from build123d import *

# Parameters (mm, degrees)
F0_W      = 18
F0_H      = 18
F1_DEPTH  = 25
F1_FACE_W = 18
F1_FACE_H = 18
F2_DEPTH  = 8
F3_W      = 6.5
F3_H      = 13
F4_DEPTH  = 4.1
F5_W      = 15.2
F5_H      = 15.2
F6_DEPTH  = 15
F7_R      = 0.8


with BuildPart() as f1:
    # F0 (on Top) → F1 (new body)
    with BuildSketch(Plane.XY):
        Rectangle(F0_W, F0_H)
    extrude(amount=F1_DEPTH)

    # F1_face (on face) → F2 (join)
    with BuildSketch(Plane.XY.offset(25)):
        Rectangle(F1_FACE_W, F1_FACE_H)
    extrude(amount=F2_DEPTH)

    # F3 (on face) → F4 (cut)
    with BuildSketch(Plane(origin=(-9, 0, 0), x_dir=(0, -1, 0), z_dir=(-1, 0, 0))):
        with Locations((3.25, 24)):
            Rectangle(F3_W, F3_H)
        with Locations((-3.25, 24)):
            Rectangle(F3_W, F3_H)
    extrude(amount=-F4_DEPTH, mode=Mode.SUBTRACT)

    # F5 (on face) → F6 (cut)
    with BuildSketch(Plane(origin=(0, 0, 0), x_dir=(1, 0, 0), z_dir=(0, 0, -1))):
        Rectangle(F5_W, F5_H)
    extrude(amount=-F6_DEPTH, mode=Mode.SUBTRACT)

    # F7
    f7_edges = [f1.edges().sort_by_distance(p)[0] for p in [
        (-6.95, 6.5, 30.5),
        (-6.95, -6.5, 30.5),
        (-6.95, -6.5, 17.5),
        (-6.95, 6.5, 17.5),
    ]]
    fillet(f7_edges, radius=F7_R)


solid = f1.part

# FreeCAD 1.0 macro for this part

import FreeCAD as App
import Part
import Sketcher


def edges_at(feature, points):
    """Names of the edges that pass closest to the given points."""
    edges = feature.Shape.Edges
    near = lambda p: min(range(len(edges)), key=lambda i: edges[i].distToShape(Part.Vertex(*p))[0])
    return sorted({f"Edge{near(p) + 1}" for p in points})

doc = App.newDocument("Part")
body = doc.addObject("PartDesign::Body", "Body")

# Sketch on XY plane
sketch1 = body.newObject("Sketcher::SketchObject", "Sketch")
sketch1.AttachmentSupport = (doc.getObject("XY_Plane"), [""])
sketch1.MapMode = "FlatFace"
sketch1.addGeometry(Part.LineSegment(App.Vector(-9, 9, 0), App.Vector(-9, -9, 0)), False)
sketch1.addGeometry(Part.LineSegment(App.Vector(-9, -9, 0), App.Vector(9, -9, 0)), False)
sketch1.addGeometry(Part.LineSegment(App.Vector(9, -9, 0), App.Vector(9, 9, 0)), False)
sketch1.addGeometry(Part.LineSegment(App.Vector(9, 9, 0), App.Vector(-9, 9, 0)), False)
sketch1.addConstraint(Sketcher.Constraint("Coincident", 0, 2, 1, 1))
sketch1.addConstraint(Sketcher.Constraint("Coincident", 1, 2, 2, 1))
sketch1.addConstraint(Sketcher.Constraint("Coincident", 2, 2, 3, 1))
sketch1.addConstraint(Sketcher.Constraint("Coincident", 3, 2, 0, 1))
sketch1.addConstraint(Sketcher.Constraint("Vertical", 0))
sketch1.addConstraint(Sketcher.Constraint("Horizontal", 1))
sketch1.addConstraint(Sketcher.Constraint("Vertical", 2))
sketch1.addConstraint(Sketcher.Constraint("Horizontal", 3))
sketch1.addConstraint(Sketcher.Constraint("Symmetric", 0, 2, 2, 2, -1, 1))
sketch1.addConstraint(Sketcher.Constraint("Equal", 3, 0))
sketch1.addConstraint(Sketcher.Constraint("DistanceX", 1, 1, 1, 2, 18.0))
pad1 = body.newObject("PartDesign::Pad", "Pad")
pad1.Profile = sketch1
pad1.Length = 25

# Sketch on XY plane
sketch2 = body.newObject("Sketcher::SketchObject", "Sketch001")
sketch2.AttachmentSupport = (doc.getObject("XY_Plane"), [""])
sketch2.MapMode = "FlatFace"
sketch2.AttachmentOffset = App.Placement(App.Vector(0, 0, 25), App.Rotation())
sketch2.addGeometry(Part.LineSegment(App.Vector(-9, 9, 0), App.Vector(-9, -9, 0)), False)
sketch2.addGeometry(Part.LineSegment(App.Vector(-9, -9, 0), App.Vector(9, -9, 0)), False)
sketch2.addGeometry(Part.LineSegment(App.Vector(9, -9, 0), App.Vector(9, 9, 0)), False)
sketch2.addGeometry(Part.LineSegment(App.Vector(9, 9, 0), App.Vector(-9, 9, 0)), False)
sketch2.addConstraint(Sketcher.Constraint("Coincident", 0, 2, 1, 1))
sketch2.addConstraint(Sketcher.Constraint("Coincident", 1, 2, 2, 1))
sketch2.addConstraint(Sketcher.Constraint("Coincident", 2, 2, 3, 1))
sketch2.addConstraint(Sketcher.Constraint("Coincident", 3, 2, 0, 1))
sketch2.addConstraint(Sketcher.Constraint("Vertical", 0))
sketch2.addConstraint(Sketcher.Constraint("Horizontal", 1))
sketch2.addConstraint(Sketcher.Constraint("Vertical", 2))
sketch2.addConstraint(Sketcher.Constraint("Horizontal", 3))
sketch2.addConstraint(Sketcher.Constraint("Symmetric", 0, 2, 2, 2, -1, 1))
sketch2.addConstraint(Sketcher.Constraint("Equal", 3, 0))
sketch2.addConstraint(Sketcher.Constraint("DistanceX", 1, 1, 1, 2, 18.0))
pad2 = body.newObject("PartDesign::Pad", "Pad001")
pad2.Profile = sketch2
pad2.Length = 8

# Sketch on YZ plane
sketch3 = body.newObject("Sketcher::SketchObject", "Sketch002")
sketch3.AttachmentSupport = (doc.getObject("YZ_Plane"), [""])
sketch3.MapMode = "FlatFace"
sketch3.AttachmentOffset = App.Placement(App.Vector(0, 0, -9), App.Rotation())
sketch3.addGeometry(Part.LineSegment(App.Vector(-6, 18, 0), App.Vector(-6, 30, 0)), False)
sketch3.addGeometry(Part.LineSegment(App.Vector(-6, 30, 0), App.Vector(6, 30, 0)), False)
sketch3.addGeometry(Part.LineSegment(App.Vector(6, 30, 0), App.Vector(6, 18, 0)), False)
sketch3.addGeometry(Part.LineSegment(App.Vector(6, 18, 0), App.Vector(-6, 18, 0)), False)
sketch3.addConstraint(Sketcher.Constraint("Coincident", 0, 2, 1, 1))
sketch3.addConstraint(Sketcher.Constraint("Coincident", 1, 2, 2, 1))
sketch3.addConstraint(Sketcher.Constraint("Coincident", 2, 2, 3, 1))
sketch3.addConstraint(Sketcher.Constraint("Coincident", 3, 2, 0, 1))
sketch3.addConstraint(Sketcher.Constraint("Vertical", 0))
sketch3.addConstraint(Sketcher.Constraint("Horizontal", 1))
sketch3.addConstraint(Sketcher.Constraint("Vertical", 2))
sketch3.addConstraint(Sketcher.Constraint("Horizontal", 3))
sketch3.addConstraint(Sketcher.Constraint("Equal", 3, 0))
sketch3.addConstraint(Sketcher.Constraint("DistanceX", 1, 1, 1, 2, 13.0))
sketch3.addConstraint(Sketcher.Constraint("DistanceX", 0, 2, -1, 1, 6.5))
sketch3.addConstraint(Sketcher.Constraint("DistanceY", -1, 1, 0, 2, 30.5))
pocket1 = body.newObject("PartDesign::Pocket", "Pocket")
pocket1.Profile = sketch3
pocket1.Length = 4.1
pocket1.Reversed = True

# Sketch on XY plane
sketch4 = body.newObject("Sketcher::SketchObject", "Sketch003")
sketch4.AttachmentSupport = (doc.getObject("XY_Plane"), [""])
sketch4.MapMode = "FlatFace"
sketch4.addGeometry(Part.LineSegment(App.Vector(-8, -8, 0), App.Vector(-8, 8, 0)), False)
sketch4.addGeometry(Part.LineSegment(App.Vector(-8, 8, 0), App.Vector(8, 8, 0)), False)
sketch4.addGeometry(Part.LineSegment(App.Vector(8, 8, 0), App.Vector(8, -8, 0)), False)
sketch4.addGeometry(Part.LineSegment(App.Vector(8, -8, 0), App.Vector(-8, -8, 0)), False)
sketch4.addConstraint(Sketcher.Constraint("Coincident", 0, 2, 1, 1))
sketch4.addConstraint(Sketcher.Constraint("Coincident", 1, 2, 2, 1))
sketch4.addConstraint(Sketcher.Constraint("Coincident", 2, 2, 3, 1))
sketch4.addConstraint(Sketcher.Constraint("Coincident", 3, 2, 0, 1))
sketch4.addConstraint(Sketcher.Constraint("Vertical", 0))
sketch4.addConstraint(Sketcher.Constraint("Horizontal", 1))
sketch4.addConstraint(Sketcher.Constraint("Vertical", 2))
sketch4.addConstraint(Sketcher.Constraint("Horizontal", 3))
sketch4.addConstraint(Sketcher.Constraint("Symmetric", 0, 2, 2, 2, -1, 1))
sketch4.addConstraint(Sketcher.Constraint("Equal", 3, 0))
sketch4.addConstraint(Sketcher.Constraint("DistanceX", 1, 1, 1, 2, 15.2))
pocket2 = body.newObject("PartDesign::Pocket", "Pocket001")
pocket2.Profile = sketch4
pocket2.Length = 15
pocket2.Reversed = True
doc.recompute()

fillet = body.newObject("PartDesign::Fillet", "Fillet")
fillet.Base = (pocket2, edges_at(pocket2, [
    (-6.95, 6.5, 30.5),
    (-6.95, -6.5, 30.5),
    (-6.95, -6.5, 17.5),
    (-6.95, 6.5, 17.5),
]))
fillet.Radius = 0.8

doc.recompute()
